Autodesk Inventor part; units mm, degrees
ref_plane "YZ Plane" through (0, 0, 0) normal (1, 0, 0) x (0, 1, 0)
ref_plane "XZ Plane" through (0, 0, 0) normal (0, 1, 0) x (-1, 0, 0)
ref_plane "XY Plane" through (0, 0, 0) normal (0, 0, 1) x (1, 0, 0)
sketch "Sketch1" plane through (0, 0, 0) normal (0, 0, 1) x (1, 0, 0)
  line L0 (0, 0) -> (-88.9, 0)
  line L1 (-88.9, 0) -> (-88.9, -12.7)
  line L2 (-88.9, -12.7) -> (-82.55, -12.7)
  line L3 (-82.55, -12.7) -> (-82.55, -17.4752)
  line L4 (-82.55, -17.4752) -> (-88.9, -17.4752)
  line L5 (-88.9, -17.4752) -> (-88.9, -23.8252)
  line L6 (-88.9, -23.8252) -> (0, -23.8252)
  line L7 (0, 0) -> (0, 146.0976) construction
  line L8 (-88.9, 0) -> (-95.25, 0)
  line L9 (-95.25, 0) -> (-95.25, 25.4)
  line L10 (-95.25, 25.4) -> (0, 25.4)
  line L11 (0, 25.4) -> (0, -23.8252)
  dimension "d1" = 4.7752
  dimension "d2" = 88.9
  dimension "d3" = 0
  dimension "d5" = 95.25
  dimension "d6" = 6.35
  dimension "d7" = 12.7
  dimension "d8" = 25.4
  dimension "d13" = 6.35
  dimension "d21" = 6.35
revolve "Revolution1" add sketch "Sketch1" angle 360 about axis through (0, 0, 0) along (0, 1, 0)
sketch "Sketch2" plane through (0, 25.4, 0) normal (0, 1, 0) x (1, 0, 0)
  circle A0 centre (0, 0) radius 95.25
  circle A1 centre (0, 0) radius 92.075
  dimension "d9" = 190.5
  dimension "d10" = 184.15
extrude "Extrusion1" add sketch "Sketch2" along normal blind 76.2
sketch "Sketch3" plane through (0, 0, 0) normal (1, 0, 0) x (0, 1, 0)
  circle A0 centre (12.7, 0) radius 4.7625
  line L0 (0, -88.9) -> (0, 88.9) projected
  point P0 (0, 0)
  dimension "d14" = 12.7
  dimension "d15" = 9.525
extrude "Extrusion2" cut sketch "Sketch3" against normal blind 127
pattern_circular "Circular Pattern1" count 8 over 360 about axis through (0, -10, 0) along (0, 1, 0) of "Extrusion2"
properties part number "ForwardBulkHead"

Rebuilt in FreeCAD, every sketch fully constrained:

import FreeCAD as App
import Part
import Sketcher
Q = App.Units.Quantity

doc = App.newDocument("Part")
body = doc.addObject("PartDesign::Body", "Body")

# Sketch on XY plane
sketch1 = body.newObject("Sketcher::SketchObject", "Sketch")
sketch1.AttachmentSupport = (doc.getObject("XY_Plane"), [""])
sketch1.MapMode = "FlatFace"
sketch1.addGeometry([
    Part.LineSegment(App.Vector(0, -23.8252, 0), App.Vector(0, 25.4, 0)),  # 0
    Part.LineSegment(App.Vector(0, 25.4, 0), App.Vector(-95.25, 25.4, 0)),  # 1
    Part.LineSegment(App.Vector(-95.25, 25.4, 0), App.Vector(-95.25, 0, 0)),  # 2
    Part.LineSegment(App.Vector(-95.25, 0, 0), App.Vector(-88.9, 0, 0)),  # 3
    Part.LineSegment(App.Vector(-88.9, 0, 0), App.Vector(-88.9, -12.7, 0)),  # 4
    Part.LineSegment(App.Vector(-88.9, -12.7, 0), App.Vector(-82.55, -12.7, 0)),  # 5
    Part.LineSegment(App.Vector(-82.55, -12.7, 0), App.Vector(-82.55, -17.4752, 0)),  # 6
    Part.LineSegment(App.Vector(-82.55, -17.4752, 0), App.Vector(-88.9, -17.4752, 0)),  # 7
    Part.LineSegment(App.Vector(-88.9, -17.4752, 0), App.Vector(-88.9, -23.8252, 0)),  # 8
    Part.LineSegment(App.Vector(-88.9, -23.8252, 0), App.Vector(0, -23.8252, 0)),  # 9
], False)
sketch1.addConstraint([
    Sketcher.Constraint("Coincident", 0, 2, 1, 1),
    Sketcher.Constraint("Coincident", 1, 2, 2, 1),
    Sketcher.Constraint("Coincident", 2, 2, 3, 1),
    Sketcher.Constraint("Coincident", 3, 2, 4, 1),
    Sketcher.Constraint("Coincident", 4, 2, 5, 1),
    Sketcher.Constraint("Coincident", 5, 2, 6, 1),
    Sketcher.Constraint("Coincident", 6, 2, 7, 1),
    Sketcher.Constraint("Coincident", 7, 2, 8, 1),
    Sketcher.Constraint("Coincident", 8, 2, 9, 1),
    Sketcher.Constraint("Coincident", 9, 2, 0, 1),
    Sketcher.Constraint("Vertical", 0),
    Sketcher.Constraint("Horizontal", 1),
    Sketcher.Constraint("Vertical", 2),
    Sketcher.Constraint("Horizontal", 3),
    Sketcher.Constraint("Vertical", 4),
    Sketcher.Constraint("Horizontal", 5),
    Sketcher.Constraint("Vertical", 6),
    Sketcher.Constraint("Horizontal", 7),
    Sketcher.Constraint("Vertical", 8),
    Sketcher.Constraint("Horizontal", 9),
    Sketcher.Constraint("PointOnObject", 0, 2, -2),
    Sketcher.Constraint("PointOnObject", 2, 2, -1),
    Sketcher.Constraint("Vertical", 4, 2, 7, 2),
    Sketcher.Constraint("Equal", 3, 5),
    Sketcher.Constraint("Equal", 7, 8),
    Sketcher.Constraint("DistanceY", 2, 2, 2, 1, Q("1 in")),
    Sketcher.Constraint("DistanceX", 9, 1, 9, 2, Q("3.5 in")),
    Sketcher.Constraint("DistanceY", 4, 2, 4, 1, Q("0.5 in")),
    Sketcher.Constraint("DistanceX", 1, 2, 1, 1, Q("3.75 in")),
    Sketcher.Constraint("DistanceY", 6, 2, 6, 1, Q("0.188 in")),
])
revolution = body.newObject("PartDesign::Revolution", "Revolution")
revolution.Profile = sketch1
revolution.ReferenceAxis = (sketch1, ["V_Axis"])
revolution.Angle = 360

# Sketch on XZ plane
sketch2 = body.newObject("Sketcher::SketchObject", "Sketch001")
sketch2.AttachmentSupport = (doc.getObject("XZ_Plane"), [""])
sketch2.MapMode = "FlatFace"
sketch2.AttachmentOffset = App.Placement(App.Vector(0, 0, -1 * 25.4), App.Rotation())
sketch2.addGeometry([
    Part.Circle(App.Vector(0, 0, 0), App.Vector(0, 0, 1), 95.25),
    Part.Circle(App.Vector(0, 0, 0), App.Vector(0, 0, 1), 92.075),
], False)
sketch2.addConstraint([
    Sketcher.Constraint("Coincident", 0, 3, -1, 1),
    Sketcher.Constraint("Coincident", 1, 3, -1, 1),
    Sketcher.Constraint("Diameter", 0, Q("7.5 in")),
    Sketcher.Constraint("Diameter", 1, Q("7.25 in")),
])
pad1 = body.newObject("PartDesign::Pad", "Pad")
pad1.Profile = sketch2
pad1.Length = Q("3 in")
pad1.Reversed = True

# Sketch on YZ plane
sketch3 = body.newObject("Sketcher::SketchObject", "Sketch002")
sketch3.AttachmentSupport = (doc.getObject("YZ_Plane"), [""])
sketch3.MapMode = "FlatFace"
sketch3.addGeometry(Part.Circle(App.Vector(12.7, 0, 0), App.Vector(0, 0, 1), 4.7625), False)
sketch3.addConstraint([
    Sketcher.Constraint("PointOnObject", 0, 3, -1),
    Sketcher.Constraint("Diameter", 0, Q("0.375 in")),
    Sketcher.Constraint("DistanceX", -1, 1, 0, 3, Q("0.5 in")),
])
pocket1 = body.newObject("PartDesign::Pocket", "Pocket")
pocket1.Profile = sketch3
pocket1.Length = Q("5 in")
doc.recompute()

polarpattern = body.newObject("PartDesign::PolarPattern", "PolarPattern")
polarpattern.Originals = [pocket1]
polarpattern.Axis = (doc.getObject("Y_Axis"), [""])
polarpattern.Angle = 360
polarpattern.Occurrences = 8
body.Tip = polarpattern

doc.recompute()
